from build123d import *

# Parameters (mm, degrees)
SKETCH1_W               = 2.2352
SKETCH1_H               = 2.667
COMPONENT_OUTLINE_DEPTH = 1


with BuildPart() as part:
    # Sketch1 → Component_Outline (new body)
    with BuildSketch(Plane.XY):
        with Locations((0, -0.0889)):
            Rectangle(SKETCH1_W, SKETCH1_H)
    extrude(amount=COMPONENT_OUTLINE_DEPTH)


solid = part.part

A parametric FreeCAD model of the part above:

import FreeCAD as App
import Part
import Sketcher
from FreeCAD import Vector
Q = App.Units.Quantity

doc = App.newDocument("Part")
params = doc.addObject("Spreadsheet::Sheet", "Params")
for row, (alias, value) in enumerate([
    ("sketch1_width", "0.088 in"),
    ("sketch1_height", "0.105 in"),
    ("pad1_length", "1 mm"),
], start=1):
    params.set(f"A{row}", alias)
    params.set(f"B{row}", "=" + value)
    params.setAlias(f"B{row}", alias)

body = doc.addObject("PartDesign::Body", "Body")

# Sketch on XY plane
sketch1 = body.newObject("Sketcher::SketchObject", "Sketch")
sketch1.AttachmentSupport = (doc.getObject("XY_Plane"), [""])
sketch1.MapMode = "FlatFace"
sketch1.addGeometry([
    Part.LineSegment(Vector(-1.1, 1.2, 0), Vector(-1.1, -1.4, 0)),
    Part.LineSegment(Vector(-1.1, -1.4, 0), Vector(1.1, -1.4, 0)),
    Part.LineSegment(Vector(1.1, -1.4, 0), Vector(1.1, 1.2, 0)),
    Part.LineSegment(Vector(1.1, 1.2, 0), Vector(-1.1, 1.2, 0)),
], False)
sketch1.addConstraint([
    Sketcher.Constraint("Coincident", 0, 2, 1, 1),
    Sketcher.Constraint("Coincident", 1, 2, 2, 1),
    Sketcher.Constraint("Coincident", 2, 2, 3, 1),
    Sketcher.Constraint("Coincident", 3, 2, 0, 1),
    Sketcher.Constraint("Vertical", 0),
    Sketcher.Constraint("Horizontal", 1),
    Sketcher.Constraint("Vertical", 2),
    Sketcher.Constraint("Horizontal", 3),
    Sketcher.Constraint("DistanceX", 1, 1, 1, 2, Q("0.088 in")),
    Sketcher.Constraint("DistanceY", 0, 2, 0, 1, Q("0.105 in")),
    Sketcher.Constraint("DistanceX", 0, 2, -1, 1, Q("0.044 in")),
    Sketcher.Constraint("DistanceY", 0, 2, -1, 1, Q("0.056 in")),
])
sketch1.setExpression("Constraints[8]", "Params.sketch1_width")
sketch1.setExpression("Constraints[9]", "Params.sketch1_height")
pad1 = body.newObject("PartDesign::Pad", "Pad")
pad1.Profile = sketch1
pad1.setExpression("Length", "Params.pad1_length")

doc.recompute()
